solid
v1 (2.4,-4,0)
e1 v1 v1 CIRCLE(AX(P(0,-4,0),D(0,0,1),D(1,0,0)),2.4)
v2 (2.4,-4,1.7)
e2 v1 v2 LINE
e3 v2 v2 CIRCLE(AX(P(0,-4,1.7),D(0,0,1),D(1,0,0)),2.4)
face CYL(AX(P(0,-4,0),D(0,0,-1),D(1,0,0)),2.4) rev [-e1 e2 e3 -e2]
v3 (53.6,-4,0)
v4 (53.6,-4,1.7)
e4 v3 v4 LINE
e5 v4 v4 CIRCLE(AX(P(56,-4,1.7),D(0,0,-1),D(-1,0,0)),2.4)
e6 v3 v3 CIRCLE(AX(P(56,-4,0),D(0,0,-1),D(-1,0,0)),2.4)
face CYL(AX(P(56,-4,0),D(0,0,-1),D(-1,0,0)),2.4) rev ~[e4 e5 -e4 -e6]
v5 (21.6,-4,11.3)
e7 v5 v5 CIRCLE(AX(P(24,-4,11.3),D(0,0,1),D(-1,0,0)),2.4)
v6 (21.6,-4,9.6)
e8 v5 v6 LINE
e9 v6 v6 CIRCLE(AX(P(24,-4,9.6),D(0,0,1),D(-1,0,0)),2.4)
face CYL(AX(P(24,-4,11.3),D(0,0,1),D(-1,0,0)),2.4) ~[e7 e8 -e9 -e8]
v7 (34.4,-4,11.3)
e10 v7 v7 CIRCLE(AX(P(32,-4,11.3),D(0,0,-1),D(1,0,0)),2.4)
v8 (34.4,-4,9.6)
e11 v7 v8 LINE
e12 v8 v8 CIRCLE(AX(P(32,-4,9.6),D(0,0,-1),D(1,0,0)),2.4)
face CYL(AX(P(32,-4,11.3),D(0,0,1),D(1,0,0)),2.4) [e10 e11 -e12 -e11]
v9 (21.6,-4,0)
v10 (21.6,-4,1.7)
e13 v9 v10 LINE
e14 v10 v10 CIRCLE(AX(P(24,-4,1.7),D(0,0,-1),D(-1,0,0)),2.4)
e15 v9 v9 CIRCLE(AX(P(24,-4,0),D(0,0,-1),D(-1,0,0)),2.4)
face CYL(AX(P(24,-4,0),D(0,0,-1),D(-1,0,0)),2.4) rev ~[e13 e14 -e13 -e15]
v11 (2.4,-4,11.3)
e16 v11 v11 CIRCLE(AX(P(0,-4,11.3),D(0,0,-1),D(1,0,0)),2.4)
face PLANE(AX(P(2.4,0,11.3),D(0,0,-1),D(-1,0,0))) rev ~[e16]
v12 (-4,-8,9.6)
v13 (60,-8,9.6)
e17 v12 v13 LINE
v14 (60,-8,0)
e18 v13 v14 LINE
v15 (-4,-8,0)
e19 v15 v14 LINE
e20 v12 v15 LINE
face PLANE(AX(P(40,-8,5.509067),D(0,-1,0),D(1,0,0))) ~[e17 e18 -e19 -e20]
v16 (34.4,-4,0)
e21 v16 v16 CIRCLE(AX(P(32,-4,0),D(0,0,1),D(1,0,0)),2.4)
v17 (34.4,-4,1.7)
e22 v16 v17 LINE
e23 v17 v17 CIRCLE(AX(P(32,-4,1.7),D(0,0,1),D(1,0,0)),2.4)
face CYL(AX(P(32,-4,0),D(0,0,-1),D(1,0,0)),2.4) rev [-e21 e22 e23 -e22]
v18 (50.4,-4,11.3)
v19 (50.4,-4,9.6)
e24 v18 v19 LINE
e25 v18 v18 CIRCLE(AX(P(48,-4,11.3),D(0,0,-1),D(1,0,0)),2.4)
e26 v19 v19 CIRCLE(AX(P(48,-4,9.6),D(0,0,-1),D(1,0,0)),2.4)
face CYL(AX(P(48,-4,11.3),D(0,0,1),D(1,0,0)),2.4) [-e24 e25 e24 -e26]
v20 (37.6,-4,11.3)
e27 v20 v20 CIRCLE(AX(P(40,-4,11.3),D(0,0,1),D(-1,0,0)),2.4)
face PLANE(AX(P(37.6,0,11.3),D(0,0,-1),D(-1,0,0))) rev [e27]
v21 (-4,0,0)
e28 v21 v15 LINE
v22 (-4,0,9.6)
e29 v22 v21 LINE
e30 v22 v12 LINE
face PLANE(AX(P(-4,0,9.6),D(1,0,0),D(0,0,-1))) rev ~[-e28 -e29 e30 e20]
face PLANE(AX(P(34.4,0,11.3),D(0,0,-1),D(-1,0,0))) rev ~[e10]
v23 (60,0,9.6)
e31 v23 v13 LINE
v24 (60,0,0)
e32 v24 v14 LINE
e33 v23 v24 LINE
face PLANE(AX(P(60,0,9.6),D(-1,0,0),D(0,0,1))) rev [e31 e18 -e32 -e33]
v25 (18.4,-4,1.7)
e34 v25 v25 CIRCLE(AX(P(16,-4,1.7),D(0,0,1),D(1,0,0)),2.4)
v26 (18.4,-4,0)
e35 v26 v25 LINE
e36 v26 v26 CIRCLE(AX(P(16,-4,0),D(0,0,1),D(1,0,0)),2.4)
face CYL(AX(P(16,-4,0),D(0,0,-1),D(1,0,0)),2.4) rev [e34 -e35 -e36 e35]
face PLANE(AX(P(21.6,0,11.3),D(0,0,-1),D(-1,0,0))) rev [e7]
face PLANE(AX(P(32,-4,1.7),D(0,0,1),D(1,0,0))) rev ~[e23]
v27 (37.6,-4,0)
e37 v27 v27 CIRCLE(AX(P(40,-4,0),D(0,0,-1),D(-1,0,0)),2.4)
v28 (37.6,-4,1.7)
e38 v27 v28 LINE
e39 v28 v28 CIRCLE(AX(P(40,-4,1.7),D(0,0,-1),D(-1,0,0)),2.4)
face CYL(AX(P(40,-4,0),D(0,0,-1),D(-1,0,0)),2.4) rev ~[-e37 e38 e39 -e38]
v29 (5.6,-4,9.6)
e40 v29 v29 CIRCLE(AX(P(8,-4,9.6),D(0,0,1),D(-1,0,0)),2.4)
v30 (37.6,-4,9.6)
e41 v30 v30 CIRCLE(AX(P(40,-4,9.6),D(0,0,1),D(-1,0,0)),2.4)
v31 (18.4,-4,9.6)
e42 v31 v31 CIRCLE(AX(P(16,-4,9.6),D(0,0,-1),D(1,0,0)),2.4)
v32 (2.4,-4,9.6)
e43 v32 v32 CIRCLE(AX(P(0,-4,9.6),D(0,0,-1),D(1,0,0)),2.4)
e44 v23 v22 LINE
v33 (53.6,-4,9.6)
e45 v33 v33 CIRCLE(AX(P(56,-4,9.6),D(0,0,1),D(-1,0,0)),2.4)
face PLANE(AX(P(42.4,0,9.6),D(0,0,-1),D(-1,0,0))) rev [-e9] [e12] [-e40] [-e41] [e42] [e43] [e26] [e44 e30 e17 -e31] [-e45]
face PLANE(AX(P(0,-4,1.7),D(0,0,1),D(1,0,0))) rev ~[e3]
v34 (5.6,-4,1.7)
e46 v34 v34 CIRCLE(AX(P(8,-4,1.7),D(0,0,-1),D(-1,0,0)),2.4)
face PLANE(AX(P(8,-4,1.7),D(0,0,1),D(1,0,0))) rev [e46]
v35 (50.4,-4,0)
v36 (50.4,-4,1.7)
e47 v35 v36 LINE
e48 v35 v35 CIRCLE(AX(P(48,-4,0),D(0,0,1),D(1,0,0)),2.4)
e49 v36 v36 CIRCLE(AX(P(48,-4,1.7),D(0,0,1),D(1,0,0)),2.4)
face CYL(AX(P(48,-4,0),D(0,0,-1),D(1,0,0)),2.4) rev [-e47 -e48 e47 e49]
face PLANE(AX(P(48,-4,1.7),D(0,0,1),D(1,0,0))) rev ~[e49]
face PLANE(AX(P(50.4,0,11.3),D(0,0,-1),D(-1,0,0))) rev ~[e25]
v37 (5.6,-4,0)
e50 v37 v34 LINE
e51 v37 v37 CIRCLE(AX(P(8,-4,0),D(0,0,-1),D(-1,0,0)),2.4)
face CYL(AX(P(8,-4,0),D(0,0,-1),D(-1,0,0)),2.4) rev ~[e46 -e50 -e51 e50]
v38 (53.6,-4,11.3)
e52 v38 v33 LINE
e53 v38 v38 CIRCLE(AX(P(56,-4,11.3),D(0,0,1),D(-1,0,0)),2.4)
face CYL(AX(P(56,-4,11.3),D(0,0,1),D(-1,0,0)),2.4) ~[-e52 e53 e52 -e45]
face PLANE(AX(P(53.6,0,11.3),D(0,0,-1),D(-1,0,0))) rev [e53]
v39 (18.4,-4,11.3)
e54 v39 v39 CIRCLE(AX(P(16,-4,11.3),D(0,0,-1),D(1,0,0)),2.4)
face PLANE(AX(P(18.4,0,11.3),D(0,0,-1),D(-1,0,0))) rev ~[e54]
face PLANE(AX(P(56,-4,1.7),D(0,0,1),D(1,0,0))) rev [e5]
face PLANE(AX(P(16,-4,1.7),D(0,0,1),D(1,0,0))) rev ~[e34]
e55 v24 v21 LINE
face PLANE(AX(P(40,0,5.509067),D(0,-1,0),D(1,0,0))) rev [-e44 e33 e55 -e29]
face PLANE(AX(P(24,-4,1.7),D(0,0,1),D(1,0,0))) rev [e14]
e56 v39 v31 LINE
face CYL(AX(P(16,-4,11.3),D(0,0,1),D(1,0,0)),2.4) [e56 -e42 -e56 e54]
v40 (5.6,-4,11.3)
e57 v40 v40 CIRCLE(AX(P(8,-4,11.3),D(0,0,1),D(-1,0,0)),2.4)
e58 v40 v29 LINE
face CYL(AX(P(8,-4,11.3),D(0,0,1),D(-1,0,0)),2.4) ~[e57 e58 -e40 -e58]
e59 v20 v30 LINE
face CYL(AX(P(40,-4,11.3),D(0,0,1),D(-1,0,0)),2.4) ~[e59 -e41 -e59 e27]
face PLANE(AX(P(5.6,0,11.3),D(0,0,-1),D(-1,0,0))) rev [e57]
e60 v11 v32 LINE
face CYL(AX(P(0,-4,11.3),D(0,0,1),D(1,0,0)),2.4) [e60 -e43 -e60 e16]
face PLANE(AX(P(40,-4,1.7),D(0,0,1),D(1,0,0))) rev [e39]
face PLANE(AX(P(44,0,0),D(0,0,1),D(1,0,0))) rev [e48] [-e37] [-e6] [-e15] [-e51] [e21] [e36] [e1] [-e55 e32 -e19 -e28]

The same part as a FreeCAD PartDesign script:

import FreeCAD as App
import Part
import Sketcher
from FreeCAD import Vector

doc = App.newDocument("Part")
params = doc.addObject("Spreadsheet::Sheet", "Params")
for row, (alias, value) in enumerate([
    ("sketch1_width", "8 mm"),
    ("sketch1_width2", "1.6 mm"),
    ("sketch1_height", "9.6 mm"),
    ("sketch1_height2", "1.7 mm"),
    ("pad1_length", "8 mm"),
    ("sketch2_diameter", "4.8 mm"),
    ("sketch2_width", "8 mm"),
    ("pocket1_length", "1.7 mm"),
    ("sketch3_diameter", "4.8 mm"),
    ("pocket2_length", "1.7 mm"),
], start=1):
    params.set(f"A{row}", alias)
    params.set(f"B{row}", "=" + value)
    params.setAlias(f"B{row}", alias)

body = doc.addObject("PartDesign::Body", "Body")

sketch1 = body.newObject("Sketcher::SketchObject", "Sketch")
sketch1.AttachmentSupport = (doc.getObject("XZ_Plane"), [""])
sketch1.MapMode = "FlatFace"
sketch1.addGeometry([
    Part.LineSegment(Vector(-2.4, 9.6, 0), Vector(-4, 9.6, 0)),
    Part.LineSegment(Vector(-4, 9.6, 0), Vector(-4, 0, 0)),
    Part.LineSegment(Vector(-4, 0, 0), Vector(4, 0, 0)),
    Part.LineSegment(Vector(4, 0, 0), Vector(4, 9.6, 0)),
    Part.LineSegment(Vector(4, 9.6, 0), Vector(2.4, 9.6, 0)),
    Part.LineSegment(Vector(2.4, 9.6, 0), Vector(2.4, 11.3, 0)),
    Part.LineSegment(Vector(2.4, 11.3, 0), Vector(-2.4, 11.3, 0)),
    Part.LineSegment(Vector(-2.4, 11.3, 0), Vector(-2.4, 9.6, 0)),
], False)
sketch1.addConstraint([
    Sketcher.Constraint("Coincident", 0, 2, 1, 1),
    Sketcher.Constraint("Coincident", 1, 2, 2, 1),
    Sketcher.Constraint("Coincident", 2, 2, 3, 1),
    Sketcher.Constraint("Coincident", 3, 2, 4, 1),
    Sketcher.Constraint("Coincident", 4, 2, 5, 1),
    Sketcher.Constraint("Coincident", 5, 2, 6, 1),
    Sketcher.Constraint("Coincident", 6, 2, 7, 1),
    Sketcher.Constraint("Coincident", 7, 2, 0, 1),
    Sketcher.Constraint("Horizontal", 0),
    Sketcher.Constraint("Vertical", 1),
    Sketcher.Constraint("Horizontal", 2),
    Sketcher.Constraint("Vertical", 3),
    Sketcher.Constraint("Horizontal", 4),
    Sketcher.Constraint("Vertical", 5),
    Sketcher.Constraint("Horizontal", 6),
    Sketcher.Constraint("Vertical", 7),
    Sketcher.Constraint("Symmetric", 1, 2, 2, 2, -1, 1),
    Sketcher.Constraint("Symmetric", 4, 2, 7, 2, -2),
    Sketcher.Constraint("DistanceX", 2, 1, 2, 2, 8.0),
    Sketcher.Constraint("DistanceX", 0, 2, 0, 1, 1.6),
    Sketcher.Constraint("DistanceY", 1, 2, 1, 1, 9.6),
    Sketcher.Constraint("DistanceY", 5, 1, 5, 2, 1.7),
])
sketch1.setExpression("Constraints[18]", "Params.sketch1_width")
sketch1.setExpression("Constraints[19]", "Params.sketch1_width2")
sketch1.setExpression("Constraints[20]", "Params.sketch1_height")
sketch1.setExpression("Constraints[21]", "Params.sketch1_height2")
pad1 = body.newObject("PartDesign::Pad", "Pad")
pad1.Profile = sketch1
pad1.setExpression("Length", "Params.pad1_length")

sketch2 = body.newObject("Sketcher::SketchObject", "Sketch001")
sketch2.AttachmentSupport = (doc.getObject("XY_Plane"), [""])
sketch2.MapMode = "FlatFace"
sketch2.AttachmentOffset = App.Placement(Vector(0, 0, 11.3), App.Rotation())
sketch2.addGeometry([
    Part.LineSegment(Vector(-4, 0, 0), Vector(-4, -8, 0)),
    Part.LineSegment(Vector(-4, -8, 0), Vector(4, -8, 0)),
    Part.LineSegment(Vector(4, -8, 0), Vector(4, 0, 0)),
    Part.LineSegment(Vector(4, 0, 0), Vector(-4, 0, 0)),
    Part.Circle(Vector(0, -4, 0), Vector(0, 0, 1), 2.4),
], False)
sketch2.addConstraint([
    Sketcher.Constraint("Coincident", 0, 2, 1, 1),
    Sketcher.Constraint("Coincident", 1, 2, 2, 1),
    Sketcher.Constraint("Coincident", 2, 2, 3, 1),
    Sketcher.Constraint("Coincident", 3, 2, 0, 1),
    Sketcher.Constraint("Vertical", 0),
    Sketcher.Constraint("Horizontal", 1),
    Sketcher.Constraint("Vertical", 2),
    Sketcher.Constraint("Horizontal", 3),
    Sketcher.Constraint("Symmetric", 2, 2, 3, 2, -1, 1),
    Sketcher.Constraint("PointOnObject", 4, 3, -2),
    Sketcher.Constraint("Equal", 3, 0),
    Sketcher.Constraint("Diameter", 4, 4.8),
    Sketcher.Constraint("DistanceX", 1, 1, 1, 2, 8.0),
    Sketcher.Constraint("DistanceY", 4, 3, -1, 1, 4.0),
])
sketch2.setExpression("Constraints[11]", "Params.sketch2_diameter")
sketch2.setExpression("Constraints[12]", "Params.sketch2_width")
pocket1 = body.newObject("PartDesign::Pocket", "Pocket")
pocket1.Profile = sketch2
pocket1.setExpression("Length", "Params.pocket1_length")

sketch3 = body.newObject("Sketcher::SketchObject", "Sketch002")
sketch3.AttachmentSupport = (doc.getObject("XY_Plane"), [""])
sketch3.MapMode = "FlatFace"
sketch3.addGeometry(Part.Circle(Vector(0, -4, 0), Vector(0, 0, 1), 2.4), False)
sketch3.addConstraint([
    Sketcher.Constraint("PointOnObject", 0, 3, -2),
    Sketcher.Constraint("Diameter", 0, 4.8),
    Sketcher.Constraint("DistanceY", 0, 3, -1, 1, 4.0),
])
sketch3.setExpression("Constraints[1]", "Params.sketch3_diameter")
pocket2 = body.newObject("PartDesign::Pocket", "Pocket001")
pocket2.Profile = sketch3
pocket2.setExpression("Length", "Params.pocket2_length")
pocket2.Reversed = True
body2 = doc.addObject("PartDesign::Body", "Body001")
doc.recompute()

body2.BaseFeature = body
doc.recompute()

mirroring = doc.addObject("Part::Mirroring", "Mirroring")
mirroring.Source = body
mirroring.Base = Vector(4, 0, 0)
mirroring.Normal = Vector(1, 0, 0)
body3 = doc.addObject("PartDesign::Body", "Body002")
body3.BaseFeature = mirroring
boolean = body2.newObject("PartDesign::Boolean", "Boolean")
boolean.Type = "Fuse"
boolean.addObjects([body3])
doc.recompute()
body4 = doc.addObject("PartDesign::Body", "Body003")
doc.recompute()

body4.BaseFeature = body2
doc.recompute()

mirroring2 = doc.addObject("Part::Mirroring", "Mirroring001")
mirroring2.Source = body2
mirroring2.Base = Vector(12, 0, 0)
mirroring2.Normal = Vector(1, 0, 0)
body5 = doc.addObject("PartDesign::Body", "Body004")
body5.BaseFeature = mirroring2
boolean2 = body4.newObject("PartDesign::Boolean", "Boolean001")
boolean2.Type = "Fuse"
boolean2.addObjects([body5])
doc.recompute()
body6 = doc.addObject("PartDesign::Body", "Body005")
doc.recompute()

body6.BaseFeature = body4
doc.recompute()

mirroring3 = doc.addObject("Part::Mirroring", "Mirroring002")
mirroring3.Source = body4
mirroring3.Base = Vector(28, 0, 0)
mirroring3.Normal = Vector(1, 0, 0)
body7 = doc.addObject("PartDesign::Body", "Body006")
body7.BaseFeature = mirroring3
boolean3 = body6.newObject("PartDesign::Boolean", "Boolean002")
boolean3.Type = "Fuse"
boolean3.addObjects([body7])
doc.recompute()
mirroring.Visibility = False
mirroring2.Visibility = False
mirroring3.Visibility = False

doc.recompute()
